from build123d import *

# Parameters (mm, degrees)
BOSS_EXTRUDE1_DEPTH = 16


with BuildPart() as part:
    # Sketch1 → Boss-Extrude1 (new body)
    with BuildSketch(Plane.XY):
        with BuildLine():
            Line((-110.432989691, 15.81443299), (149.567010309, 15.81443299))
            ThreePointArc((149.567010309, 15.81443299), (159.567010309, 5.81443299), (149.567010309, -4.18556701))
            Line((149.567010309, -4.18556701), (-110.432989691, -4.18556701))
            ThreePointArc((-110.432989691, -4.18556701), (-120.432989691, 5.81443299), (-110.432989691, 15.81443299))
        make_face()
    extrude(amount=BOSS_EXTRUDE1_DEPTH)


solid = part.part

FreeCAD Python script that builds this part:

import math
import FreeCAD as App
import Part
import Sketcher
from FreeCAD import Vector

doc = App.newDocument("Part")
params = doc.addObject("Spreadsheet::Sheet", "Params")
for row, (alias, value) in enumerate([
    ("sketch1_radius", "10 mm"),
    ("sketch1_width", "260 mm"),
    ("pad1_length", "16 mm"),
], start=1):
    params.set(f"A{row}", alias)
    params.set(f"B{row}", "=" + value)
    params.setAlias(f"B{row}", alias)

body = doc.addObject("PartDesign::Body", "Body")

sketch1 = body.newObject("Sketcher::SketchObject", "Sketch")
sketch1.AttachmentSupport = (doc.getObject("XY_Plane"), [""])
sketch1.MapMode = "FlatFace"
sketch1.addGeometry(Part.LineSegment(Vector(150, 16, 0), Vector(-110, 16, 0)), False)
sketch1.addGeometry(Part.ArcOfCircle(Part.Circle(Vector(-110, 6, 0), Vector(0, 0, 1), 10), math.radians(90), math.radians(270)), False)
sketch1.addGeometry(Part.LineSegment(Vector(-110, -4, 0), Vector(150, -4, 0)), False)
sketch1.addGeometry(Part.ArcOfCircle(Part.Circle(Vector(150, 6, 0), Vector(0, 0, 1), 10), math.radians(-90), math.radians(90)), False)
sketch1.addConstraint(Sketcher.Constraint("Tangent", 0, 2, 1, 1))
sketch1.addConstraint(Sketcher.Constraint("Tangent", 1, 2, 2, 1))
sketch1.addConstraint(Sketcher.Constraint("Tangent", 2, 2, 3, 1))
sketch1.addConstraint(Sketcher.Constraint("Tangent", 3, 2, 0, 1))
sketch1.addConstraint(Sketcher.Constraint("Horizontal", 0))
sketch1.addConstraint(Sketcher.Constraint("Horizontal", 2))
sketch1.addConstraint(Sketcher.Constraint("Radius", 1, 10.0))
sketch1.addConstraint(Sketcher.Constraint("DistanceX", 0, 2, 0, 1, 260.0))
sketch1.addConstraint(Sketcher.Constraint("DistanceX", 1, 3, -1, 1, 110.43299))
sketch1.addConstraint(Sketcher.Constraint("DistanceY", -1, 1, 1, 3, 5.814433))
sketch1.setExpression("Constraints[6]", "Params.sketch1_radius")
sketch1.setExpression("Constraints[7]", "Params.sketch1_width")
pad1 = body.newObject("PartDesign::Pad", "Pad")
pad1.Profile = sketch1
pad1.setExpression("Length", "Params.pad1_length")

doc.recompute()
